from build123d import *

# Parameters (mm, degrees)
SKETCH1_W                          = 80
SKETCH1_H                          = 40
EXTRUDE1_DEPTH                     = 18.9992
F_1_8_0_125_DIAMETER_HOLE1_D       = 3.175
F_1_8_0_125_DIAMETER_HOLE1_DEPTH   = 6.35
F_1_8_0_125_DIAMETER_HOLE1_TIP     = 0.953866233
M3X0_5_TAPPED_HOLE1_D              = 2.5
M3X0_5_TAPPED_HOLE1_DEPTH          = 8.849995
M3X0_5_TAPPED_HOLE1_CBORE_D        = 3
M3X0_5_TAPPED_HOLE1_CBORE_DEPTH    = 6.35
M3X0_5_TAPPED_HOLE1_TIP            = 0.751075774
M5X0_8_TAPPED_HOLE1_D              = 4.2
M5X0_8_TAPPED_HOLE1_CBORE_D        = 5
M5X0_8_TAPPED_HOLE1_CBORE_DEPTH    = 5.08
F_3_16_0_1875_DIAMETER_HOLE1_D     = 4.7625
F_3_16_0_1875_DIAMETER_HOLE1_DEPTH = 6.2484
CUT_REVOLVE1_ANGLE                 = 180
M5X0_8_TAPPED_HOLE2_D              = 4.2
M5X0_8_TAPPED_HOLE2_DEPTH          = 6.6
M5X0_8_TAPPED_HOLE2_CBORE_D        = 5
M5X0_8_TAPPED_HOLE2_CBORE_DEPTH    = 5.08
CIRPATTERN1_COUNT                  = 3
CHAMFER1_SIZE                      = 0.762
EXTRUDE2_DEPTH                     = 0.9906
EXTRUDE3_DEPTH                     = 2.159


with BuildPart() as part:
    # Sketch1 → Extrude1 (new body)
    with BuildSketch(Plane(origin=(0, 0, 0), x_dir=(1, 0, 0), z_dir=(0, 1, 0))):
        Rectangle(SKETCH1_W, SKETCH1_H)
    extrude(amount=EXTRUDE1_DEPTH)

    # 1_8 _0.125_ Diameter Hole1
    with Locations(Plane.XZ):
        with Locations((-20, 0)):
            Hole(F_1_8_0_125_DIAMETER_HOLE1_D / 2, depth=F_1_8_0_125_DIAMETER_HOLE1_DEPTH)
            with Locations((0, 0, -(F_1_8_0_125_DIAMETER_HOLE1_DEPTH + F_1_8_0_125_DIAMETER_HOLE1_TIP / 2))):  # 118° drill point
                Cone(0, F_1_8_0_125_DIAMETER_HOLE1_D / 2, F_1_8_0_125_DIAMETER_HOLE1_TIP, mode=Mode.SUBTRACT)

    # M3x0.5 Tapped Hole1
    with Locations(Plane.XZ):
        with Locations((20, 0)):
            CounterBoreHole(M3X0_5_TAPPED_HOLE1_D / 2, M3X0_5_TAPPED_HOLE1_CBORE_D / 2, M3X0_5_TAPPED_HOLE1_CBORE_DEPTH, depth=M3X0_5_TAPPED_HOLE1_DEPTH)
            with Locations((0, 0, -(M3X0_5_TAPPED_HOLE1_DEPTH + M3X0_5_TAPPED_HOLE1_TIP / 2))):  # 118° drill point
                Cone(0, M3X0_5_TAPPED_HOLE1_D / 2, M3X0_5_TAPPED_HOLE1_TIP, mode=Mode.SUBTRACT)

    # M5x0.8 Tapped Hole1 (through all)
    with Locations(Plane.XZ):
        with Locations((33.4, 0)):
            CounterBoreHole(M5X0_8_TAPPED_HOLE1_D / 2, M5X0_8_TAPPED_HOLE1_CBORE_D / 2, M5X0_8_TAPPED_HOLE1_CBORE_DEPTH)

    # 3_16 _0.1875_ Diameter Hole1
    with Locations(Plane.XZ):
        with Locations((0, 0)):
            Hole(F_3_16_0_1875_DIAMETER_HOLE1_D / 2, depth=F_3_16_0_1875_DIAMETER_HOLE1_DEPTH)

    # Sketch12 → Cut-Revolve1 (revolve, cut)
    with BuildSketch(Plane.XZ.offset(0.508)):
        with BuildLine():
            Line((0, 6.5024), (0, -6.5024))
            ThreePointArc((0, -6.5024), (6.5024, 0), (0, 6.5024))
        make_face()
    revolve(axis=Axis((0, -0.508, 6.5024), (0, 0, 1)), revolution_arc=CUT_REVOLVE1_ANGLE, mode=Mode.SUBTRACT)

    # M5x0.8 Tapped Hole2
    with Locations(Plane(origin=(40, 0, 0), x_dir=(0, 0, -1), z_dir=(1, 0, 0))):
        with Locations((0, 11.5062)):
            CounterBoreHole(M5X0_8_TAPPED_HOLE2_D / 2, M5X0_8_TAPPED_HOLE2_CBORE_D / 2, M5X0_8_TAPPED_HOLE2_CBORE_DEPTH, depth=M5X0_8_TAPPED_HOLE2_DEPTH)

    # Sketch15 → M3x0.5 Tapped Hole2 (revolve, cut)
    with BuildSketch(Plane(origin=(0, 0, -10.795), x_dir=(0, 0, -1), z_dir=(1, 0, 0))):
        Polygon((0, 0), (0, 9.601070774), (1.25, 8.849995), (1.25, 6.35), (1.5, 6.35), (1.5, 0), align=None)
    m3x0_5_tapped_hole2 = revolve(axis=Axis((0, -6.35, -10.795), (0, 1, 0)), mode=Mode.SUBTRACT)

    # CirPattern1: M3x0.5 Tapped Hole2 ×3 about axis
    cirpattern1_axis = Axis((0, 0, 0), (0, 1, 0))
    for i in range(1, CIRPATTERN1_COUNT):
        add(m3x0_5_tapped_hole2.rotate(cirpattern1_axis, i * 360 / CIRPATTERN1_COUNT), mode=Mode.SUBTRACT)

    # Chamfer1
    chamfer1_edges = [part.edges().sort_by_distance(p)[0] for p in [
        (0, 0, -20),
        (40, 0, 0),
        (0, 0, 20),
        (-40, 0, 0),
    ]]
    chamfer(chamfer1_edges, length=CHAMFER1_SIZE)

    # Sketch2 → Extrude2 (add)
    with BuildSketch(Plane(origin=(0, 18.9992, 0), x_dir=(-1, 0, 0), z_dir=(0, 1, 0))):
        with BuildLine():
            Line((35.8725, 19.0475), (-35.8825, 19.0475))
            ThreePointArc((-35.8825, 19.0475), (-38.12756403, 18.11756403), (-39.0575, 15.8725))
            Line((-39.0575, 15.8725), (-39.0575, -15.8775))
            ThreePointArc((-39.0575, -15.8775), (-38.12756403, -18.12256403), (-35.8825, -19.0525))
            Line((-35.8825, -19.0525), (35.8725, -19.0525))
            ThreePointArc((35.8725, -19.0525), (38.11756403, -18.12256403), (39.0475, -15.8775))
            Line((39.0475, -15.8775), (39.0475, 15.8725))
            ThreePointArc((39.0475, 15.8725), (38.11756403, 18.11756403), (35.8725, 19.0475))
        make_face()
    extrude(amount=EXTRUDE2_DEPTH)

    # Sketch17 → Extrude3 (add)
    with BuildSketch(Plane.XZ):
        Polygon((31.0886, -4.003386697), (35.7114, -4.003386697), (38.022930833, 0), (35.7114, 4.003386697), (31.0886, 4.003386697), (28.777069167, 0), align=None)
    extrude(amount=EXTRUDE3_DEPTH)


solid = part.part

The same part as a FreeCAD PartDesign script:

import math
import FreeCAD as App
import Part
import Sketcher
Q = App.Units.Quantity


def edges_at(feature, points):
    """Names of the edges that pass closest to the given points."""
    edges = feature.Shape.Edges
    near = lambda p: min(range(len(edges)), key=lambda i: edges[i].distToShape(Part.Vertex(*p))[0])
    return sorted({f"Edge{near(p) + 1}" for p in points})

doc = App.newDocument("Part")
params = doc.addObject("Spreadsheet::Sheet", "Params")
for row, (alias, value) in enumerate([
    ("pad1_length", "0.748 in"),
    ("sketch2_diameter", "0.125 in"),
    ("hole_diameter", "0.125 in"),
    ("hole_depth", "0.25 in"),
    ("hole2_diameter", "2.5 mm"),
    ("hole2_depth", "8.849995 mm"),
    ("hole2_cbore_diameter", "3 mm"),
    ("hole2_cbore_depth", "0.25 in"),
    ("hole3_diameter", "4.2 mm"),
    ("hole3_cbore_diameter", "5 mm"),
    ("hole3_cbore_depth", "0.2 in"),
    ("sketch5_diameter", "0.1875 in"),
    ("hole4_diameter", "0.1875 in"),
    ("hole4_depth", "0.246 in"),
    ("sketch6_radius", "0.256 in"),
    ("groove_angle", "180 deg"),
    ("hole5_diameter", "4.2 mm"),
    ("hole5_depth", "6.6 mm"),
    ("hole5_cbore_diameter", "5 mm"),
    ("hole5_cbore_depth", "0.2 in"),
    ("sketch8_width", "0.25 in"),
    ("groove2_angle", "360 deg"),
    ("chamfer_size", "0.03 in"),
    ("sketch9_radius", "0.125 in"),
    ("sketch9_height", "1.25 in"),
    ("sketch9_width", "2.825 in"),
    ("pad2_length", "0.039 in"),
    ("sketch10_width", "0.182 in"),
    ("sketch10_length", "0.182 in"),
    ("pad3_length", "0.085 in"),
], start=1):
    params.set(f"A{row}", alias)
    params.set(f"B{row}", "=" + value)
    params.setAlias(f"B{row}", alias)

body = doc.addObject("PartDesign::Body", "Body")

# Sketch on XZ plane
sketch1 = doc.addObject("Sketcher::SketchObject", "Sketch")
body.addObject(sketch1)
sketch1.AttachmentSupport = (doc.XZ_Plane, [""])
sketch1.MapMode = "FlatFace"
sketch1.addGeometry(Part.LineSegment(App.Vector(-40, -20, 0), App.Vector(-40, 20, 0)), False)
sketch1.addGeometry(Part.LineSegment(App.Vector(-40, 20, 0), App.Vector(40, 20, 0)), False)
sketch1.addGeometry(Part.LineSegment(App.Vector(40, 20, 0), App.Vector(40, -20, 0)), False)
sketch1.addGeometry(Part.LineSegment(App.Vector(40, -20, 0), App.Vector(-40, -20, 0)), False)
sketch1.addConstraint(Sketcher.Constraint("Coincident", 0, 2, 1, 1))
sketch1.addConstraint(Sketcher.Constraint("Coincident", 1, 2, 2, 1))
sketch1.addConstraint(Sketcher.Constraint("Coincident", 2, 2, 3, 1))
sketch1.addConstraint(Sketcher.Constraint("Coincident", 3, 2, 0, 1))
sketch1.addConstraint(Sketcher.Constraint("Vertical", 0))
sketch1.addConstraint(Sketcher.Constraint("Horizontal", 1))
sketch1.addConstraint(Sketcher.Constraint("Vertical", 2))
sketch1.addConstraint(Sketcher.Constraint("Horizontal", 3))
sketch1.addConstraint(Sketcher.Constraint("Symmetric", 0, 2, 2, 2, -1, 1))
sketch1.addConstraint(Sketcher.Constraint("DistanceX", 1, 1, 1, 2, Q("80 mm")))
sketch1.addConstraint(Sketcher.Constraint("DistanceY", 0, 1, 0, 2, Q("40 mm")))
pad1 = doc.addObject("PartDesign::Pad", "Pad")
body.addObject(pad1)
pad1.Profile = sketch1
pad1.setExpression("Length", "Params.pad1_length")
pad1.Reversed = True

# Sketch on XZ plane
sketch2 = doc.addObject("Sketcher::SketchObject", "Sketch001")
body.addObject(sketch2)
sketch2.AttachmentSupport = (doc.XZ_Plane, [""])
sketch2.MapMode = "FlatFace"
sketch2.addGeometry(Part.Circle(App.Vector(-20, 0, 0), App.Vector(0, 0, 1), 1.6), False)
sketch2.addConstraint(Sketcher.Constraint("PointOnObject", 0, 3, -1))
sketch2.addConstraint(Sketcher.Constraint("Diameter", 0, Q("0.125 in")))
sketch2.addConstraint(Sketcher.Constraint("DistanceX", 0, 3, -1, 1, Q("20 mm")))
sketch2.setExpression("Constraints[1]", "Params.sketch2_diameter")
doc.recompute()
hole = doc.addObject("PartDesign::Hole", "Hole")
body.addObject(hole)
hole.Profile = sketch2
hole.ThreadType = "None"
hole.setExpression("Diameter", "Params.hole_diameter")
hole.DepthType = "Dimension"
hole.setExpression("Depth", "Params.hole_depth")
hole.DrillPoint = "Angled"
hole.DrillPointAngle = 118

# Sketch on XZ plane
sketch3 = doc.addObject("Sketcher::SketchObject", "Sketch002")
body.addObject(sketch3)
sketch3.AttachmentSupport = (doc.XZ_Plane, [""])
sketch3.MapMode = "FlatFace"
sketch3.addGeometry(Part.Circle(App.Vector(20, 0, 0), App.Vector(0, 0, 1), 1.2), False)
sketch3.addConstraint(Sketcher.Constraint("PointOnObject", 0, 3, -1))
sketch3.addConstraint(Sketcher.Constraint("Diameter", 0, Q("2.5 mm")))
sketch3.addConstraint(Sketcher.Constraint("DistanceX", -1, 1, 0, 3, Q("20 mm")))
doc.recompute()
hole2 = doc.addObject("PartDesign::Hole", "Hole001")
body.addObject(hole2)
hole2.Profile = sketch3
hole2.ThreadType = "None"
hole2.setExpression("Diameter", "Params.hole2_diameter")
hole2.DepthType = "Dimension"
hole2.setExpression("Depth", "Params.hole2_depth")
hole2.DrillPoint = "Angled"
hole2.DrillPointAngle = 118
hole2.HoleCutType = "Counterbore"
hole2.setExpression("HoleCutDiameter", "Params.hole2_cbore_diameter")
hole2.setExpression("HoleCutDepth", "Params.hole2_cbore_depth")

# Sketch on XZ plane
sketch4 = doc.addObject("Sketcher::SketchObject", "Sketch003")
body.addObject(sketch4)
sketch4.AttachmentSupport = (doc.XZ_Plane, [""])
sketch4.MapMode = "FlatFace"
sketch4.addGeometry(Part.Circle(App.Vector(33.4, 0, 0), App.Vector(0, 0, 1), 2.1), False)
sketch4.addConstraint(Sketcher.Constraint("PointOnObject", 0, 3, -1))
sketch4.addConstraint(Sketcher.Constraint("Diameter", 0, Q("4.2 mm")))
sketch4.addConstraint(Sketcher.Constraint("DistanceX", -1, 1, 0, 3, Q("33.4 mm")))
doc.recompute()
hole3 = doc.addObject("PartDesign::Hole", "Hole002")
body.addObject(hole3)
hole3.Profile = sketch4
hole3.ThreadType = "None"
hole3.setExpression("Diameter", "Params.hole3_diameter")
hole3.DepthType = "ThroughAll"
hole3.HoleCutType = "Counterbore"
hole3.setExpression("HoleCutDiameter", "Params.hole3_cbore_diameter")
hole3.setExpression("HoleCutDepth", "Params.hole3_cbore_depth")

# Sketch on XZ plane
sketch5 = doc.addObject("Sketcher::SketchObject", "Sketch004")
body.addObject(sketch5)
sketch5.AttachmentSupport = (doc.XZ_Plane, [""])
sketch5.MapMode = "FlatFace"
sketch5.addGeometry(Part.Circle(App.Vector(0, 0, 0), App.Vector(0, 0, 1), 2.4), False)
sketch5.addConstraint(Sketcher.Constraint("Coincident", 0, 3, -1, 1))
sketch5.addConstraint(Sketcher.Constraint("Diameter", 0, Q("0.1875 in")))
sketch5.setExpression("Constraints[1]", "Params.sketch5_diameter")
doc.recompute()
hole4 = doc.addObject("PartDesign::Hole", "Hole003")
body.addObject(hole4)
hole4.Profile = sketch5
hole4.ThreadType = "None"
hole4.setExpression("Diameter", "Params.hole4_diameter")
hole4.DepthType = "Dimension"
hole4.setExpression("Depth", "Params.hole4_depth")
hole4.DrillPoint = "Flat"

# Sketch on XZ plane
sketch6 = doc.addObject("Sketcher::SketchObject", "Sketch005")
body.addObject(sketch6)
sketch6.AttachmentSupport = (doc.XZ_Plane, [""])
sketch6.MapMode = "FlatFace"
sketch6.AttachmentOffset = App.Placement(App.Vector(0, 0, 0.02 * 25.4), App.Rotation())
sketch6.addGeometry(Part.LineSegment(App.Vector(0, 7, 0), App.Vector(0, -7, 0)), False)
sketch6.addGeometry(Part.ArcOfCircle(Part.Circle(App.Vector(0, 0, 0), App.Vector(0, 0, 1), 7), math.radians(-90), math.radians(90)), False)
sketch6.addConstraint(Sketcher.Constraint("Coincident", 0, 1, 1, 2))
sketch6.addConstraint(Sketcher.Constraint("Coincident", 1, 1, 0, 2))
sketch6.addConstraint(Sketcher.Constraint("Vertical", 0))
sketch6.addConstraint(Sketcher.Constraint("Coincident", 1, 3, -1, 1))
sketch6.addConstraint(Sketcher.Constraint("PointOnObject", 0, 1, -2))
sketch6.addConstraint(Sketcher.Constraint("Radius", 1, Q("0.256 in")))
sketch6.setExpression("Constraints[5]", "Params.sketch6_radius")
groove = doc.addObject("PartDesign::Groove", "Groove")
body.addObject(groove)
groove.Profile = sketch6
groove.ReferenceAxis = (sketch6, ["V_Axis"])
groove.setExpression("Angle", "Params.groove_angle")

# Sketch on YZ plane
sketch7 = doc.addObject("Sketcher::SketchObject", "Sketch006")
body.addObject(sketch7)
sketch7.AttachmentSupport = (doc.YZ_Plane, [""])
sketch7.MapMode = "FlatFace"
sketch7.AttachmentOffset = App.Placement(App.Vector(0, 0, 40), App.Rotation())
sketch7.addGeometry(Part.Circle(App.Vector(11.5, 0, 0), App.Vector(0, 0, 1), 2.1), False)
sketch7.addConstraint(Sketcher.Constraint("PointOnObject", 0, 3, -1))
sketch7.addConstraint(Sketcher.Constraint("Diameter", 0, Q("4.2 mm")))
sketch7.addConstraint(Sketcher.Constraint("DistanceX", -1, 1, 0, 3, Q("0.453 in")))
doc.recompute()
hole5 = doc.addObject("PartDesign::Hole", "Hole004")
body.addObject(hole5)
hole5.Profile = sketch7
hole5.ThreadType = "None"
hole5.setExpression("Diameter", "Params.hole5_diameter")
hole5.DepthType = "Dimension"
hole5.setExpression("Depth", "Params.hole5_depth")
hole5.DrillPoint = "Flat"
hole5.HoleCutType = "Counterbore"
hole5.setExpression("HoleCutDiameter", "Params.hole5_cbore_diameter")
hole5.setExpression("HoleCutDepth", "Params.hole5_cbore_depth")

# Sketch on YZ plane
sketch8 = doc.addObject("Sketcher::SketchObject", "Sketch007")
body.addObject(sketch8)
sketch8.AttachmentSupport = (doc.YZ_Plane, [""])
sketch8.MapMode = "FlatFace"
sketch8.addGeometry(Part.LineSegment(App.Vector(9.6, -10.79, 0), App.Vector(0, -10.79, 0)), False)
sketch8.addGeometry(Part.LineSegment(App.Vector(0, -10.79, 0), App.Vector(0, -12.29, 0)), False)
sketch8.addGeometry(Part.LineSegment(App.Vector(0, -12.29, 0), App.Vector(6.35, -12.29, 0)), False)
sketch8.addGeometry(Part.LineSegment(App.Vector(6.35, -12.29, 0), App.Vector(6.35, -12.04, 0)), False)
sketch8.addGeometry(Part.LineSegment(App.Vector(6.35, -12.04, 0), App.Vector(8.85, -12.04, 0)), False)
sketch8.addGeometry(Part.LineSegment(App.Vector(8.85, -12.04, 0), App.Vector(9.6, -10.79, 0)), False)
sketch8.addGeometry(Part.LineSegment(App.Vector(0, -10.79, 0), App.Vector(9.6, -10.79, 0)), True)  # axis
sketch8.addConstraint(Sketcher.Constraint("Coincident", 0, 2, 1, 1))
sketch8.addConstraint(Sketcher.Constraint("Coincident", 1, 2, 2, 1))
sketch8.addConstraint(Sketcher.Constraint("Coincident", 2, 2, 3, 1))
sketch8.addConstraint(Sketcher.Constraint("Coincident", 3, 2, 4, 1))
sketch8.addConstraint(Sketcher.Constraint("Coincident", 4, 2, 5, 1))
sketch8.addConstraint(Sketcher.Constraint("Coincident", 5, 2, 0, 1))
sketch8.addConstraint(Sketcher.Constraint("Horizontal", 0))
sketch8.addConstraint(Sketcher.Constraint("Vertical", 1))
sketch8.addConstraint(Sketcher.Constraint("Horizontal", 2))
sketch8.addConstraint(Sketcher.Constraint("Vertical", 3))
sketch8.addConstraint(Sketcher.Constraint("Horizontal", 4))
sketch8.addConstraint(Sketcher.Constraint("Horizontal", 6))
sketch8.addConstraint(Sketcher.Constraint("Coincident", 6, 1, 0, 2))
sketch8.addConstraint(Sketcher.Constraint("PointOnObject", 0, 2, -2))
sketch8.addConstraint(Sketcher.Constraint("Equal", 0, 6))
sketch8.addConstraint(Sketcher.Constraint("Angle", 5, Q("59 deg")))
sketch8.addConstraint(Sketcher.Constraint("DistanceX", 2, 1, 2, 2, Q("0.25 in")))
sketch8.addConstraint(Sketcher.Constraint("DistanceY", 0, 2, -1, 1, Q("0.425 in")))
sketch8.addConstraint(Sketcher.Constraint("DistanceY", 1, 2, 1, 1, Q("1.5 mm")))
sketch8.addConstraint(Sketcher.Constraint("DistanceY", 3, 1, 3, 2, Q("0.25 mm")))
sketch8.addConstraint(Sketcher.Constraint("DistanceX", 0, 2, 0, 1, Q("9.601071 mm")))
sketch8.setExpression("Constraints[16]", "Params.sketch8_width")
groove2 = doc.addObject("PartDesign::Groove", "Groove001")
body.addObject(groove2)
groove2.Profile = sketch8
groove2.ReferenceAxis = (sketch8, ["Axis0"])
groove2.setExpression("Angle", "Params.groove2_angle")
doc.recompute()

polarpattern = doc.addObject("PartDesign::PolarPattern", "PolarPattern")
body.addObject(polarpattern)
polarpattern.Originals = [groove2]
polarpattern.Axis = (doc.Y_Axis, [""])
polarpattern.Angle = 360
polarpattern.Occurrences = 3
body.Tip = polarpattern
doc.recompute()

chamfer = doc.addObject("PartDesign::Chamfer", "Chamfer")
body.addObject(chamfer)
chamfer.Base = (polarpattern, edges_at(polarpattern, [
    (0, 0, -20),
    (40, 0, 0),
    (0, 0, 20),
    (-40, 0, 0),
]))
chamfer.setExpression("Size", "Params.chamfer_size")

# Sketch on XZ plane
sketch9 = doc.addObject("Sketcher::SketchObject", "Sketch008")
body.addObject(sketch9)
sketch9.AttachmentSupport = (doc.XZ_Plane, [""])
sketch9.MapMode = "FlatFace"
sketch9.AttachmentOffset = App.Placement(App.Vector(0, 0, -0.748 * 25.4), App.Rotation())
sketch9.addGeometry(Part.LineSegment(App.Vector(-35.9, 19, 0), App.Vector(35.9, 19, 0)), False)
sketch9.addGeometry(Part.ArcOfCircle(Part.Circle(App.Vector(35.9, 15.9, 0), App.Vector(0, 0, 1), 3.2), math.radians(0), math.radians(90)), False)
sketch9.addGeometry(Part.LineSegment(App.Vector(39.1, 15.9, 0), App.Vector(39.1, -15.9, 0)), False)
sketch9.addGeometry(Part.ArcOfCircle(Part.Circle(App.Vector(35.9, -15.9, 0), App.Vector(0, 0, 1), 3.2), math.radians(-90), math.radians(0)), False)
sketch9.addGeometry(Part.LineSegment(App.Vector(35.9, -19.1, 0), App.Vector(-35.9, -19.1, 0)), False)
sketch9.addGeometry(Part.ArcOfCircle(Part.Circle(App.Vector(-35.9, -15.9, 0), App.Vector(0, 0, 1), 3.2), math.radians(-180), math.radians(-90)), False)
sketch9.addGeometry(Part.LineSegment(App.Vector(-39, -15.9, 0), App.Vector(-39, 15.9, 0)), False)
sketch9.addGeometry(Part.ArcOfCircle(Part.Circle(App.Vector(-35.9, 15.9, 0), App.Vector(0, 0, 1), 3.2), math.radians(90), math.radians(180)), False)
sketch9.addConstraint(Sketcher.Constraint("Tangent", 0, 2, 1, 2))
sketch9.addConstraint(Sketcher.Constraint("Tangent", 1, 1, 2, 1))
sketch9.addConstraint(Sketcher.Constraint("Tangent", 2, 2, 3, 2))
sketch9.addConstraint(Sketcher.Constraint("Tangent", 3, 1, 4, 1))
sketch9.addConstraint(Sketcher.Constraint("Tangent", 4, 2, 5, 2))
sketch9.addConstraint(Sketcher.Constraint("Tangent", 5, 1, 6, 1))
sketch9.addConstraint(Sketcher.Constraint("Tangent", 6, 2, 7, 2))
sketch9.addConstraint(Sketcher.Constraint("Tangent", 7, 1, 0, 1))
sketch9.addConstraint(Sketcher.Constraint("Horizontal", 0))
sketch9.addConstraint(Sketcher.Constraint("Vertical", 2))
sketch9.addConstraint(Sketcher.Constraint("Horizontal", 4))
sketch9.addConstraint(Sketcher.Constraint("Vertical", 6))
sketch9.addConstraint(Sketcher.Constraint("Equal", 1, 3))
sketch9.addConstraint(Sketcher.Constraint("Equal", 3, 5))
sketch9.addConstraint(Sketcher.Constraint("Equal", 5, 7))
sketch9.addConstraint(Sketcher.Constraint("Radius", 1, Q("0.125 in")))
sketch9.addConstraint(Sketcher.Constraint("DistanceY", 2, 2, 2, 1, Q("1.25 in")))
sketch9.addConstraint(Sketcher.Constraint("DistanceX", 0, 1, 0, 2, Q("2.825 in")))
sketch9.addConstraint(Sketcher.Constraint("DistanceX", -1, 1, 1, 3, Q("35.8825 mm")))
sketch9.addConstraint(Sketcher.Constraint("DistanceY", -1, 1, 1, 3, Q("15.8725 mm")))
sketch9.setExpression("Constraints[15]", "Params.sketch9_radius")
sketch9.setExpression("Constraints[16]", "Params.sketch9_height")
sketch9.setExpression("Constraints[17]", "Params.sketch9_width")
pad2 = doc.addObject("PartDesign::Pad", "Pad001")
body.addObject(pad2)
pad2.Profile = sketch9
pad2.setExpression("Length", "Params.pad2_length")
pad2.Reversed = True

# Sketch on XZ plane
sketch10 = doc.addObject("Sketcher::SketchObject", "Sketch009")
body.addObject(sketch10)
sketch10.AttachmentSupport = (doc.XZ_Plane, [""])
sketch10.MapMode = "FlatFace"
sketch10.addGeometry(Part.LineSegment(App.Vector(31.1, -4, 0), App.Vector(35.7, -4, 0)), False)
sketch10.addGeometry(Part.LineSegment(App.Vector(35.7, -4, 0), App.Vector(38, 0, 0)), False)
sketch10.addGeometry(Part.LineSegment(App.Vector(38, 0, 0), App.Vector(35.7, 4, 0)), False)
sketch10.addGeometry(Part.LineSegment(App.Vector(35.7, 4, 0), App.Vector(31.1, 4, 0)), False)
sketch10.addGeometry(Part.LineSegment(App.Vector(31.1, 4, 0), App.Vector(28.8, 0, 0)), False)
sketch10.addGeometry(Part.LineSegment(App.Vector(28.8, 0, 0), App.Vector(31.1, -4, 0)), False)
sketch10.addConstraint(Sketcher.Constraint("Coincident", 0, 2, 1, 1))
sketch10.addConstraint(Sketcher.Constraint("Coincident", 1, 2, 2, 1))
sketch10.addConstraint(Sketcher.Constraint("Coincident", 2, 2, 3, 1))
sketch10.addConstraint(Sketcher.Constraint("Coincident", 3, 2, 4, 1))
sketch10.addConstraint(Sketcher.Constraint("Coincident", 4, 2, 5, 1))
sketch10.addConstraint(Sketcher.Constraint("Coincident", 5, 2, 0, 1))
sketch10.addConstraint(Sketcher.Constraint("Horizontal", 0))
sketch10.addConstraint(Sketcher.Constraint("Horizontal", 3))
sketch10.addConstraint(Sketcher.Constraint("Symmetric", 0, 2, 2, 2, -1))
sketch10.addConstraint(Sketcher.Constraint("PointOnObject", 1, 2, -1))
sketch10.addConstraint(Sketcher.Constraint("PointOnObject", 4, 2, -1))
sketch10.addConstraint(Sketcher.Constraint("Parallel", 1, 4))
sketch10.addConstraint(Sketcher.Constraint("Parallel", 2, 5))
sketch10.addConstraint(Sketcher.Constraint("DistanceX", 0, 1, 0, 2, Q("0.182 in")))
sketch10.addConstraint(Sketcher.Constraint("Distance", 1, Q("0.182 in")))
sketch10.addConstraint(Sketcher.Constraint("DistanceX", -1, 1, 0, 2, Q("35.7114 mm")))
sketch10.addConstraint(Sketcher.Constraint("DistanceX", -1, 1, 1, 2, Q("38.022931 mm")))
sketch10.setExpression("Constraints[13]", "Params.sketch10_width")
sketch10.setExpression("Constraints[14]", "Params.sketch10_length")
pad3 = doc.addObject("PartDesign::Pad", "Pad002")
body.addObject(pad3)
pad3.Profile = sketch10
pad3.setExpression("Length", "Params.pad3_length")

doc.recompute()
